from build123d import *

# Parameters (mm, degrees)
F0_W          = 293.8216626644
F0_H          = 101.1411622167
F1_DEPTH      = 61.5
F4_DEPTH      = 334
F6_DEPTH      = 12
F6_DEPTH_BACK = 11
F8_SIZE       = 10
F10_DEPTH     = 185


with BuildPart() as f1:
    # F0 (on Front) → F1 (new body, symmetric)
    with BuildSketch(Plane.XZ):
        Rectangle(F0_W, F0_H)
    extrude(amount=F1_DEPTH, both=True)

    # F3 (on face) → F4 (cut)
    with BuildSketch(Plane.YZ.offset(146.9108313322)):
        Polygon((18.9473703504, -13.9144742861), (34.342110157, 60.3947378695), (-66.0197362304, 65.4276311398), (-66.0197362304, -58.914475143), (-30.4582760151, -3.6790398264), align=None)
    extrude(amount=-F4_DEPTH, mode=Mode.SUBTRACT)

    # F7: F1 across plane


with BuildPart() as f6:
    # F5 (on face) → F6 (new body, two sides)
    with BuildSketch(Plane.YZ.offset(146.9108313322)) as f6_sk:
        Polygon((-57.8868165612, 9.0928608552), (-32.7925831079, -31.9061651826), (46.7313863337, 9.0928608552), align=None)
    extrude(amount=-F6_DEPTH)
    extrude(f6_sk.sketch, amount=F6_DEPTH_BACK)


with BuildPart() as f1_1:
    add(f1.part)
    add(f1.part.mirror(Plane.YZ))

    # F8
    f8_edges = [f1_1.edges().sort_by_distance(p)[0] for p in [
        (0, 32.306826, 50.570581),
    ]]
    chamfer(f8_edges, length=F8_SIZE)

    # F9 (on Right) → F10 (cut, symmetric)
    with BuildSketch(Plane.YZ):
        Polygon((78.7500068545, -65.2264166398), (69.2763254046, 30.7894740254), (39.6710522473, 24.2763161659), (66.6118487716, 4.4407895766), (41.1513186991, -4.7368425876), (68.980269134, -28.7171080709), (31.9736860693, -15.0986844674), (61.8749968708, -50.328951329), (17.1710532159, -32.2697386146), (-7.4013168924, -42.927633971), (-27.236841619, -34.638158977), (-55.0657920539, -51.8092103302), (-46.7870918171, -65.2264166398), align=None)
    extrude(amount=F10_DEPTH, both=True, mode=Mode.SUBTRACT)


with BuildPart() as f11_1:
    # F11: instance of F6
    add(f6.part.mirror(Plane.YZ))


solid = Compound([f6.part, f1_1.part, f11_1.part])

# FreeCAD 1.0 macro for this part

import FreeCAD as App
import Part
import Sketcher


def edges_at(feature, points):
    """Names of the edges that pass closest to the given points."""
    edges = feature.Shape.Edges
    near = lambda p: min(range(len(edges)), key=lambda i: edges[i].distToShape(Part.Vertex(*p))[0])
    return sorted({f"Edge{near(p) + 1}" for p in points})


def add_polygon(sketch, points):
    """Adds a closed chain of lines whose ends are joined by coincident constraints."""
    first, n = sketch.GeometryCount, len(points)
    for a, b in zip(points, points[1:] + points[:1]):
        sketch.addGeometry(Part.LineSegment(App.Vector(*a, 0), App.Vector(*b, 0)), False)
    for i in range(n):
        sketch.addConstraint(Sketcher.Constraint("Coincident", first + i, 2, first + (i + 1) % n, 1))

doc = App.newDocument("Part")
params = doc.addObject("Spreadsheet::Sheet", "Params")
for row, (alias, value) in enumerate([
    ("pad1_length", "123 mm"),
    ("pocket1_length", "334 mm"),
    ("pad2_length", "12 mm"),
    ("pad2_length2", "11 mm"),
    ("chamfer_size", "10 mm"),
    ("pocket2_length", "370 mm"),
], start=1):
    params.set(f"A{row}", alias)
    params.set(f"B{row}", "=" + value)
    params.setAlias(f"B{row}", alias)

body = doc.addObject("PartDesign::Body", "Body")

sketch1 = doc.addObject("Sketcher::SketchObject", "Sketch")
body.addObject(sketch1)
sketch1.AttachmentSupport = (doc.XZ_Plane, [""])
sketch1.MapMode = "FlatFace"
add_polygon(sketch1, [(-146.910831, 50.570581), (-146.910831, -50.570581), (146.910831, -50.570581), (146.910831, 50.570581)])
sketch1.addConstraint([
    Sketcher.Constraint("Vertical", 0),
    Sketcher.Constraint("Horizontal", 1),
    Sketcher.Constraint("Vertical", 2),
    Sketcher.Constraint("Horizontal", 3),
    Sketcher.Constraint("Symmetric", 0, 2, 2, 2, -1, 1),
    Sketcher.Constraint("DistanceX", 1, 1, 1, 2, 293.821663),
    Sketcher.Constraint("DistanceY", 0, 2, 0, 1, 101.141162),
])
pad1 = doc.addObject("PartDesign::Pad", "Pad")
body.addObject(pad1)
pad1.Profile = sketch1
pad1.setExpression("Length", "Params.pad1_length")
pad1.Midplane = True

sketch2 = doc.addObject("Sketcher::SketchObject", "Sketch001")
body.addObject(sketch2)
sketch2.AttachmentSupport = (doc.YZ_Plane, [""])
sketch2.MapMode = "FlatFace"
sketch2.AttachmentOffset = App.Placement(App.Vector(0, 0, 146.910831), App.Rotation())
add_polygon(sketch2, [(18.94737, -13.914474), (34.34211, 60.394738), (-66.019736, 65.427631), (-66.019736, -58.914475), (-30.458276, -3.67904)])
sketch2.addConstraint([
    Sketcher.Constraint("Vertical", 2),
    Sketcher.Constraint("Perpendicular", 0, 4),
    Sketcher.Constraint("DistanceY", 2, 2, 4, 2, 45.000001),
    Sketcher.Constraint("Distance", 1, 100.487961),
    Sketcher.Constraint("DistanceY", 2, 2, 2, 1, 124.342106),
    Sketcher.Constraint("DistanceX", -1, 1, 0, 2, 34.34211),
    Sketcher.Constraint("DistanceY", -1, 1, 1, 2, 65.427631),
    Sketcher.Constraint("DistanceY", 3, 2, -1, 1, 3.67904),
    Sketcher.Constraint("DistanceX", -1, 1, 4, 2, 18.94737),
    Sketcher.Constraint("DistanceX", 2, 2, 3, 2, 35.56146),
])
pocket1 = doc.addObject("PartDesign::Pocket", "Pocket")
body.addObject(pocket1)
pocket1.Profile = sketch2
pocket1.setExpression("Length", "Params.pocket1_length")
body2 = doc.addObject("PartDesign::Body", "Body001")

sketch3 = doc.addObject("Sketcher::SketchObject", "Sketch002")
body2.addObject(sketch3)
sketch3.AttachmentSupport = (doc.getObject("YZ_Plane001"), [""])
sketch3.MapMode = "FlatFace"
sketch3.AttachmentOffset = App.Placement(App.Vector(0, 0, 146.910831), App.Rotation())
add_polygon(sketch3, [(-57.886817, 9.092861), (-32.792583, -31.906165), (46.731386, 9.092861)])
sketch3.addConstraint([
    Sketcher.Constraint("Horizontal", 2),
    Sketcher.Constraint("DistanceX", 2, 2, 2, 1, 104.618203),
    Sketcher.Constraint("DistanceY", -1, 1, 1, 2, 9.092861),
    Sketcher.Constraint("DistanceX", 0, 2, 1, 2, 79.523969),
    Sketcher.Constraint("Distance", 0, 48.069124),
    Sketcher.Constraint("DistanceX", 0, 2, -1, 1, 32.792583),
])
pad2 = doc.addObject("PartDesign::Pad", "Pad001")
body2.addObject(pad2)
pad2.Profile = sketch3
pad2.Type = "TwoLengths"
pad2.setExpression("Length", "Params.pad2_length")
pad2.setExpression("Length2", "Params.pad2_length2")
pad2.Reversed = True
body3 = doc.addObject("PartDesign::Body", "Body002")
doc.recompute()

body3.BaseFeature = body
doc.recompute()

mirroring = doc.addObject("Part::Mirroring", "Mirroring")
mirroring.Source = body
mirroring.Base = App.Vector(0, 0, 0)
mirroring.Normal = App.Vector(1, 0, 0)
body4 = doc.addObject("PartDesign::Body", "Body003")
body4.BaseFeature = mirroring
boolean = doc.addObject("PartDesign::Boolean", "Boolean")
body3.addObject(boolean)
boolean.Type = "Fuse"
boolean.addObjects([body4])
doc.recompute()

chamfer = doc.addObject("PartDesign::Chamfer", "Chamfer")
body3.addObject(chamfer)
chamfer.Base = (boolean, edges_at(boolean, [(0, 32.307, 50.571)]))
chamfer.setExpression("Size", "Params.chamfer_size")

sketch4 = doc.addObject("Sketcher::SketchObject", "Sketch003")
body3.addObject(sketch4)
sketch4.AttachmentSupport = (doc.getObject("YZ_Plane002"), [""])
sketch4.MapMode = "FlatFace"
add_polygon(sketch4, [(78.750007, -65.226417), (69.276325, 30.789474), (39.671052, 24.276316), (66.611849, 4.44079), (41.151319, -4.736843), (68.980269, -28.717108), (31.973686, -15.098684), (61.874997, -50.328951), (17.171053, -32.269739), (-7.401317, -42.927634), (-27.236842, -34.638159), (-55.065792, -51.80921), (-46.787092, -65.226417)])
sketch4.addConstraint([
    Sketcher.Constraint("Horizontal", 12),
    Sketcher.Constraint("Perpendicular", 10, 11),
    Sketcher.Constraint("DistanceX", 7, 2, 1, 2, 22.499999),
    Sketcher.Constraint("DistanceX", 12, 1, 12, 2, 125.537099),
    Sketcher.Constraint("DistanceY", 5, 2, 1, 2, 39.375001),
    Sketcher.Constraint("DistanceX", 10, 2, 11, 2, 8.2787),
    Sketcher.Constraint("Distance", 4, 36.735591),
    Sketcher.Constraint("Distance", 11, 15.765732),
    Sketcher.Constraint("DistanceX", -1, 1, 2, 2, 66.611849),
    Sketcher.Constraint("DistanceY", -1, 1, 2, 2, 4.44079),
    Sketcher.Constraint("DistanceX", -1, 1, 3, 2, 41.151319),
    Sketcher.Constraint("DistanceX", -1, 1, 4, 2, 68.980269),
    Sketcher.Constraint("DistanceY", 4, 2, -1, 1, 28.717108),
    Sketcher.Constraint("DistanceY", 6, 2, -1, 1, 50.328951),
    Sketcher.Constraint("DistanceY", 7, 2, -1, 1, 32.269739),
    Sketcher.Constraint("DistanceX", 9, 2, -1, 1, 27.236842),
    Sketcher.Constraint("DistanceY", 9, 2, -1, 1, 34.638159),
    Sketcher.Constraint("DistanceY", 10, 2, -1, 1, 51.80921),
    Sketcher.Constraint("DistanceY", 3, 2, 1, 2, 29.013159),
    Sketcher.Constraint("DistanceX", 5, 2, 0, 2, 37.302639),
    Sketcher.Constraint("DistanceY", 5, 2, 0, 2, 45.888158),
    Sketcher.Constraint("DistanceX", 5, 2, 6, 2, 29.901311),
    Sketcher.Constraint("DistanceX", 3, 2, 6, 2, 20.723678),
    Sketcher.Constraint("DistanceX", 8, 2, 7, 2, 24.57237),
    Sketcher.Constraint("DistanceY", 8, 2, 5, 2, 27.82895),
    Sketcher.Constraint("Distance", 1, 30.313255),
])
pocket2 = doc.addObject("PartDesign::Pocket", "Pocket001")
body3.addObject(pocket2)
pocket2.Profile = sketch4
pocket2.setExpression("Length", "Params.pocket2_length")
pocket2.Midplane = True
body5 = doc.addObject("PartDesign::Body", "Body004")
doc.recompute()

mirroring2 = doc.addObject("Part::Mirroring", "Mirroring001")
mirroring2.Source = body2
mirroring2.Base = App.Vector(0, 0, 0)
mirroring2.Normal = App.Vector(1, 0, 0)
body5.BaseFeature = mirroring2
doc.recompute()
mirroring.Visibility = False
mirroring2.Visibility = False

doc.recompute()
